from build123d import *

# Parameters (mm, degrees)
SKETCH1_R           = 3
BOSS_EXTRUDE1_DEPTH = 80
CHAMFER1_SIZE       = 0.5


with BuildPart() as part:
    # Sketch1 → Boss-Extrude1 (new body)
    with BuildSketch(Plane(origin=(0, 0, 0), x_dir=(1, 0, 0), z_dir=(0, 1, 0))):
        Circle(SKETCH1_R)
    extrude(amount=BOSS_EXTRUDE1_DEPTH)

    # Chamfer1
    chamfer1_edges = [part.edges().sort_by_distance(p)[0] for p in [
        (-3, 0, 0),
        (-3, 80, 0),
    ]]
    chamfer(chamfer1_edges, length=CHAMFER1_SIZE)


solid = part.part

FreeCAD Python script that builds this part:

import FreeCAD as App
import Part
import Sketcher


def edges_at(feature, points):
    """Names of the edges that pass closest to the given points."""
    edges = feature.Shape.Edges
    near = lambda p: min(range(len(edges)), key=lambda i: edges[i].distToShape(Part.Vertex(*p))[0])
    return sorted({f"Edge{near(p) + 1}" for p in points})

doc = App.newDocument("Part")
body = doc.addObject("PartDesign::Body", "Body")

# Sketch on XZ plane
sketch1 = body.newObject("Sketcher::SketchObject", "Sketch")
sketch1.AttachmentSupport = (doc.getObject("XZ_Plane"), [""])
sketch1.MapMode = "FlatFace"
sketch1.addGeometry(Part.Circle(App.Vector(0, 0, 0), App.Vector(0, 0, 1), 3), False)
sketch1.addConstraint(Sketcher.Constraint("Coincident", 0, 3, -1, 1))
sketch1.addConstraint(Sketcher.Constraint("Diameter", 0, 6.0))
pad1 = body.newObject("PartDesign::Pad", "Pad")
pad1.Profile = sketch1
pad1.Length = 80
pad1.Reversed = True
doc.recompute()

chamfer = body.newObject("PartDesign::Chamfer", "Chamfer")
chamfer.Base = (pad1, edges_at(pad1, [(-3, 0, 0), (-3, 80, 0)]))
chamfer.Size = 0.5

doc.recompute()
